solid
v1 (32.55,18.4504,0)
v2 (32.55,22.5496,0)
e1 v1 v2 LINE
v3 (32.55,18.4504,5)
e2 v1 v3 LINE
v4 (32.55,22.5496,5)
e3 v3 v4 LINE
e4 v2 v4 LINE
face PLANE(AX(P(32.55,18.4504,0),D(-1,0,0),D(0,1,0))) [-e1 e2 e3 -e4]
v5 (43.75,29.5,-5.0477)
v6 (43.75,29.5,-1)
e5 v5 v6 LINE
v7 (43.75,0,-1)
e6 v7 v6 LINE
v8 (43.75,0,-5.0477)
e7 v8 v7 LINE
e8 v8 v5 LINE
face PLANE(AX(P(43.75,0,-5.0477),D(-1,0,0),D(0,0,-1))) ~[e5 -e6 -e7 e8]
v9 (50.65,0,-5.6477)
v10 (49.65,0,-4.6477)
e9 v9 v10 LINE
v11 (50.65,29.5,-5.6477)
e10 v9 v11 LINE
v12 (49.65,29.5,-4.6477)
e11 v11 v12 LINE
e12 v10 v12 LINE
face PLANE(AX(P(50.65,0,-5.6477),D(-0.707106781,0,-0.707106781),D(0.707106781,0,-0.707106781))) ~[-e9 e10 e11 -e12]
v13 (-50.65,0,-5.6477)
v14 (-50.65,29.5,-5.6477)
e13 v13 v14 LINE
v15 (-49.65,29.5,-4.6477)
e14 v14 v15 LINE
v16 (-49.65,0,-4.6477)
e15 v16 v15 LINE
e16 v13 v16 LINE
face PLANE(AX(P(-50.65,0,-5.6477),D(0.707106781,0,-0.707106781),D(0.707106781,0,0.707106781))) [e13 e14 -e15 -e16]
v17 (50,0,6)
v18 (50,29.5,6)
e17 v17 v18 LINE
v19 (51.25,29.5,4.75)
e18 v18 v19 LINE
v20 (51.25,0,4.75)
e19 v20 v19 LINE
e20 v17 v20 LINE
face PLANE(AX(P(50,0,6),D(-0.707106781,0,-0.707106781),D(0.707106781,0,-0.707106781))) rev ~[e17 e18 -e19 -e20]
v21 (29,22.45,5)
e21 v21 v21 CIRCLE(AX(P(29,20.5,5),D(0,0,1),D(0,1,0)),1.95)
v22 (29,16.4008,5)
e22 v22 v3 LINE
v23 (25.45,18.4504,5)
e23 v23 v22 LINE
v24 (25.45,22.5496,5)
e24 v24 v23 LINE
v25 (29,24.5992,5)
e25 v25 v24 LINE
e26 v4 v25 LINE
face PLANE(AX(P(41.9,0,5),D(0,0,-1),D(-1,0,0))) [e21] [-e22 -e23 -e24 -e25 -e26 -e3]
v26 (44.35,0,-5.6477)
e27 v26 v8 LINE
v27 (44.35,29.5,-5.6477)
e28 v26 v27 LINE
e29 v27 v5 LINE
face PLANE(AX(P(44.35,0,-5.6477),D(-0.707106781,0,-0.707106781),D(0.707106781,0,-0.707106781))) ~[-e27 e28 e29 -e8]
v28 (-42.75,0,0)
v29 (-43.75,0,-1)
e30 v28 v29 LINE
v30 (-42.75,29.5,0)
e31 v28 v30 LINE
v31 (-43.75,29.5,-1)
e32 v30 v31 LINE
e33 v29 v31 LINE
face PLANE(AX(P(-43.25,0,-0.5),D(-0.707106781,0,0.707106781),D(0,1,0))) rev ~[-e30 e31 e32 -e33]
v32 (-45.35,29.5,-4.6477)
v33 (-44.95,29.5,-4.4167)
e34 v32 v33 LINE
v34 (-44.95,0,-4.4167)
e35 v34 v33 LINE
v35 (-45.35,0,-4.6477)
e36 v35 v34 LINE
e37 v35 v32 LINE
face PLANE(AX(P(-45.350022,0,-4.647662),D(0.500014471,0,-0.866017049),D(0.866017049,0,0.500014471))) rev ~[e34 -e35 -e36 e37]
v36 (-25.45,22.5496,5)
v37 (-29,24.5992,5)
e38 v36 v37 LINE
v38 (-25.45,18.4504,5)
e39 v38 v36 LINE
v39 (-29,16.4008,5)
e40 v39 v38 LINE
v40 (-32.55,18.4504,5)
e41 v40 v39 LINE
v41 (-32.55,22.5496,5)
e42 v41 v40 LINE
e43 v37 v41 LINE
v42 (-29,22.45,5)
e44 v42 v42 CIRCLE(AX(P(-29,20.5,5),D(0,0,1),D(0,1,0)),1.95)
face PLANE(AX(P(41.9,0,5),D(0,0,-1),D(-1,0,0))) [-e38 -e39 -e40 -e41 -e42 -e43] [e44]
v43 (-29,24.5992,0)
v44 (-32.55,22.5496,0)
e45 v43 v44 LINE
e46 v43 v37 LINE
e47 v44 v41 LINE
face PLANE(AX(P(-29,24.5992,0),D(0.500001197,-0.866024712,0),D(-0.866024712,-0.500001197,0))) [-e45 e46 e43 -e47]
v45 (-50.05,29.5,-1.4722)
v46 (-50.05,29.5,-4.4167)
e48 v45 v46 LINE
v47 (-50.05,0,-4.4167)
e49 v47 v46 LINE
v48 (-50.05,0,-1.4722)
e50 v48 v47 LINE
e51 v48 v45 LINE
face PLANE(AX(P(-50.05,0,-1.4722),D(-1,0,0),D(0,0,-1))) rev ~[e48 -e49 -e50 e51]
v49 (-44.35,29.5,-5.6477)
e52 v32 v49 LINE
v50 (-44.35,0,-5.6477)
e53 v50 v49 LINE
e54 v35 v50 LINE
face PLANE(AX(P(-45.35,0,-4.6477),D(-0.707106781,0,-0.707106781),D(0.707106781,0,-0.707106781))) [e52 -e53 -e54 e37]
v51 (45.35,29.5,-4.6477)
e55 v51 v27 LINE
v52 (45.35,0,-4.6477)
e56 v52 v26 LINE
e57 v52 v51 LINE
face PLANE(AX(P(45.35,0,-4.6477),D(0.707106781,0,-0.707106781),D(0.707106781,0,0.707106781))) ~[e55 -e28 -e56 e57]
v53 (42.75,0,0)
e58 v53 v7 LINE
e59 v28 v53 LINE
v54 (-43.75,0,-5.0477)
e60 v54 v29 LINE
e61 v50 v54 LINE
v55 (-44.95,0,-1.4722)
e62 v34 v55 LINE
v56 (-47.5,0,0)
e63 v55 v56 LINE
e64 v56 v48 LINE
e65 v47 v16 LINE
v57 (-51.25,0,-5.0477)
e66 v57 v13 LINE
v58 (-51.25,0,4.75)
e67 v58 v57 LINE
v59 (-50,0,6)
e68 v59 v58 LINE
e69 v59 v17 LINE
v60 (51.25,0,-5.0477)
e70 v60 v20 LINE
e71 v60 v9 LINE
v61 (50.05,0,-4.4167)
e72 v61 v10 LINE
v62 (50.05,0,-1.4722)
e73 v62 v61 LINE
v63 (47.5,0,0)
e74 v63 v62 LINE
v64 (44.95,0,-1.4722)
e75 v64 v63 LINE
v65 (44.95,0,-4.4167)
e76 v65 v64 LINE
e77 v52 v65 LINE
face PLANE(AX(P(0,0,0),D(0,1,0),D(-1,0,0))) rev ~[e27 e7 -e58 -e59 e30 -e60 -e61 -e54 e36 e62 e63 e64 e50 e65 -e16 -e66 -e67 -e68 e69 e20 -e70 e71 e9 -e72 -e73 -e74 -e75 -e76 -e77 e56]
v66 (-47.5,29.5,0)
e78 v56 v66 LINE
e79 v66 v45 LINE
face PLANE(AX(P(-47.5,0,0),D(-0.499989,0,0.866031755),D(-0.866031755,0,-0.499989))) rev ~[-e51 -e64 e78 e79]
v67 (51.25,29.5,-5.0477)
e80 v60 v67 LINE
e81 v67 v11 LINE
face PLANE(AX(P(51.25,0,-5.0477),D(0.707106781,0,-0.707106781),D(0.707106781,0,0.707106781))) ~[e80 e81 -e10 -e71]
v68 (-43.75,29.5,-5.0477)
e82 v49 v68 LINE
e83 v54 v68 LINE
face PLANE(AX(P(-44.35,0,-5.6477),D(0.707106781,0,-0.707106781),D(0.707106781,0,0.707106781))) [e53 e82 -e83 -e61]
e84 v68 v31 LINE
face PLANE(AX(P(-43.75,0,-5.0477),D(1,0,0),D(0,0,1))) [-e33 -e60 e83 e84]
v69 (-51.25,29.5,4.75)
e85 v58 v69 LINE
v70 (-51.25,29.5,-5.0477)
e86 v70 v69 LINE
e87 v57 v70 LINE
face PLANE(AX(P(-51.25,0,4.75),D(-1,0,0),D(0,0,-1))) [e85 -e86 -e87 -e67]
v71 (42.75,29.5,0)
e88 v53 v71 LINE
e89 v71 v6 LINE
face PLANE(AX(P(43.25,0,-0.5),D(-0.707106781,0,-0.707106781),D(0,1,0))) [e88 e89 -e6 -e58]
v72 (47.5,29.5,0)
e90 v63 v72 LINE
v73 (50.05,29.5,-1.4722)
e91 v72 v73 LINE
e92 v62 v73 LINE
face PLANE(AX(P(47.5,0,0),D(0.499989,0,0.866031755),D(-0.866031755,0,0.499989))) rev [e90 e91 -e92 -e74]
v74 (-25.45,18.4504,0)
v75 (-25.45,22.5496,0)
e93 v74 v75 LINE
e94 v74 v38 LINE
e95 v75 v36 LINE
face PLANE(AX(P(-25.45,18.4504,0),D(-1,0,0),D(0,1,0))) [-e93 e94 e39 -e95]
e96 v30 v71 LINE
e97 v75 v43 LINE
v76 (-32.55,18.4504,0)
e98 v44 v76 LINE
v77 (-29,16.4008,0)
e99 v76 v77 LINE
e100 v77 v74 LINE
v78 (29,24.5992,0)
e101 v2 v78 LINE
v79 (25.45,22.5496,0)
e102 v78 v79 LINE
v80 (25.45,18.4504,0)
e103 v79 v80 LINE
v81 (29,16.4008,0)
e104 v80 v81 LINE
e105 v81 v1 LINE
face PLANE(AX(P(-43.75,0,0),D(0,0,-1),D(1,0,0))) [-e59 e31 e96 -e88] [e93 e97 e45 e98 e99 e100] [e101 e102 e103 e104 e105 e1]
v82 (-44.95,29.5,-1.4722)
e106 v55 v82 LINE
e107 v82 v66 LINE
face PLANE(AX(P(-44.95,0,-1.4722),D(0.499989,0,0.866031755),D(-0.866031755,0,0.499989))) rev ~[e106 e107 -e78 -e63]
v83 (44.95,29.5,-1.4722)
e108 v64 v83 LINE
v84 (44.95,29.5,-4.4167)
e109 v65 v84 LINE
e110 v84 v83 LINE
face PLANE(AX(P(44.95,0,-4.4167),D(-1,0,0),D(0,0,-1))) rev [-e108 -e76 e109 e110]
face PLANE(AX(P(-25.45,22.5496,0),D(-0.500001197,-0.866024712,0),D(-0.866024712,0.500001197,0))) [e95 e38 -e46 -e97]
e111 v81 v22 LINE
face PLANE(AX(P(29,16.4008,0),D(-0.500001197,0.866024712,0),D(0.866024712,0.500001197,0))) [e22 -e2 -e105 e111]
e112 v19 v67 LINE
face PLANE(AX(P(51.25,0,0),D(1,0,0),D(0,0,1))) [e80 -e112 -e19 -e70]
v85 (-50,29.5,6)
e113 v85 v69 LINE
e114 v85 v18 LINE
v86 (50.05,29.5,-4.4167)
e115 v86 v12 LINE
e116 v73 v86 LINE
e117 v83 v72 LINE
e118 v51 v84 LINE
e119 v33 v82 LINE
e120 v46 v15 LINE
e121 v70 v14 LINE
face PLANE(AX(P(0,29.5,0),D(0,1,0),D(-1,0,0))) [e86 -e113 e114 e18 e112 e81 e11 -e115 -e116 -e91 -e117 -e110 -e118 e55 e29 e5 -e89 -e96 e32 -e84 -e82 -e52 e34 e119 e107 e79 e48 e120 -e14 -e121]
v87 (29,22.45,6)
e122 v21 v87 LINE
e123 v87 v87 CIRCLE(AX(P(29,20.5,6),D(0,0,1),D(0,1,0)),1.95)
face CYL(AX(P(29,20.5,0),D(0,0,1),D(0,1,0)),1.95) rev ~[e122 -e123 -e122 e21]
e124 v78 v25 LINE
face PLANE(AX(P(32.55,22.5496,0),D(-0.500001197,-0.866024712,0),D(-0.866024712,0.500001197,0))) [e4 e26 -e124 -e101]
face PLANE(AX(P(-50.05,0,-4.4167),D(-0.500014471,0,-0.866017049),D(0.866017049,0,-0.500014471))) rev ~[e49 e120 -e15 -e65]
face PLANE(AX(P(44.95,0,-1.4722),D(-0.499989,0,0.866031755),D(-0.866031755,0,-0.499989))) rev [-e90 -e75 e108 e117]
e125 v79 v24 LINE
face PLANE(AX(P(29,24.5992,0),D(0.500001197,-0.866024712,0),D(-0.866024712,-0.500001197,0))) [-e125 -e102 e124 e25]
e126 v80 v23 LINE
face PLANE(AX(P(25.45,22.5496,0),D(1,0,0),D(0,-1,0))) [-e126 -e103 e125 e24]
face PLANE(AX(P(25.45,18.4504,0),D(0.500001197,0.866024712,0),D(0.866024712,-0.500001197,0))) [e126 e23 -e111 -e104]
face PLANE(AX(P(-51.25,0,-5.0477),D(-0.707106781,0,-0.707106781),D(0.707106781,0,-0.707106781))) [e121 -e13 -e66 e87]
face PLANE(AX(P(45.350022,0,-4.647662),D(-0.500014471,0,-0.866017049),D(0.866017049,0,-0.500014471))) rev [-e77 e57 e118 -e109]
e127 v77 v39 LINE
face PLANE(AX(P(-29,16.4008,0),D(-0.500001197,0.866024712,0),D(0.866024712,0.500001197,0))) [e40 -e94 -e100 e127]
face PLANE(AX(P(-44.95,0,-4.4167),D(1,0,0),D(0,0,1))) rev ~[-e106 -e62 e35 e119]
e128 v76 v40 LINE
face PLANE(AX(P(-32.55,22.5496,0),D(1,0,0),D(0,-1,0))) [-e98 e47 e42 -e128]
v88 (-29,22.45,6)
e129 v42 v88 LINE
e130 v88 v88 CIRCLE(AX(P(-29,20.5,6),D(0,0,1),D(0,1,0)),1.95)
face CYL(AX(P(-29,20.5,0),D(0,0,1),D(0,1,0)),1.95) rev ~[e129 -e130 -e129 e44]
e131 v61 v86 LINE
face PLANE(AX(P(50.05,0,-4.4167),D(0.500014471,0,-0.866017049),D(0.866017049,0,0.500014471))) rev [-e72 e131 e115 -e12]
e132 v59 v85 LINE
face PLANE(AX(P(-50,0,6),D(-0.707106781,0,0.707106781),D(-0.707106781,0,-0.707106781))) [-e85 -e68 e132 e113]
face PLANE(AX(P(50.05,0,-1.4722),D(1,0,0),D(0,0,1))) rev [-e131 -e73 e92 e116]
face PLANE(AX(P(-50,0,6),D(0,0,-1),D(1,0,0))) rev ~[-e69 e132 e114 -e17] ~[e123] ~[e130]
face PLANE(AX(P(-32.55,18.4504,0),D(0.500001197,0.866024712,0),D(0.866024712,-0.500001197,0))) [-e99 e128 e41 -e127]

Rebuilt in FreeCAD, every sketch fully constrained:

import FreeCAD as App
import Part
import Sketcher
Q = App.Units.Quantity


def edges_at(feature, points):
    """Names of the edges that pass closest to the given points."""
    edges = feature.Shape.Edges
    near = lambda p: min(range(len(edges)), key=lambda i: edges[i].distToShape(Part.Vertex(*p))[0])
    return sorted({f"Edge{near(p) + 1}" for p in points})


def add_polygon(sketch, points):
    """Adds a closed chain of lines whose ends are joined by coincident constraints."""
    first, n = sketch.GeometryCount, len(points)
    for a, b in zip(points, points[1:] + points[:1]):
        sketch.addGeometry(Part.LineSegment(App.Vector(*a, 0), App.Vector(*b, 0)), False)
    for i in range(n):
        sketch.addConstraint(Sketcher.Constraint("Coincident", first + i, 2, first + (i + 1) % n, 1))

doc = App.newDocument("Part")
body = doc.addObject("PartDesign::Body", "Body")

# Sketch on XZ plane
sketch1 = body.newObject("Sketcher::SketchObject", "Sketch")
sketch1.AttachmentSupport = (doc.getObject("XZ_Plane"), [""])
sketch1.MapMode = "FlatFace"
add_polygon(sketch1, [(51.25, 0), (-51.25, 0), (-51.25, 4.75), (-50, 6), (50, 6), (51.25, 4.75)])  # lines 0-5
sketch1.addConstraint(Sketcher.Constraint("Horizontal", 0))
sketch1.addConstraint(Sketcher.Constraint("Vertical", 1))
sketch1.addConstraint(Sketcher.Constraint("Horizontal", 3))
sketch1.addConstraint(Sketcher.Constraint("Vertical", 5))
sketch1.addConstraint(Sketcher.Constraint("Symmetric", 0, 2, 5, 2, -1, 1))
sketch1.addConstraint(Sketcher.Constraint("Perpendicular", 2, 4))
sketch1.addConstraint(Sketcher.Constraint("Horizontal", 1, 2, 4, 2))
sketch1.addConstraint(Sketcher.Constraint("Equal", 2, 4))
sketch1.addConstraint(Sketcher.Constraint("DistanceX", 3, 1, 3, 2, Q("100 mm")))
sketch1.addConstraint(Sketcher.Constraint("DistanceY", -1, 1, 2, 2, Q("6 mm")))
sketch1.addConstraint(Sketcher.Constraint("DistanceX", 0, 2, 0, 1, Q("102.5 mm")))
pad1 = body.newObject("PartDesign::Pad", "Pad")
pad1.Profile = sketch1
pad1.Length = 29.5
pad1.Reversed = True

# Sketch on XZ plane
sketch2 = body.newObject("Sketcher::SketchObject", "Sketch001")
sketch2.AttachmentSupport = (doc.getObject("XZ_Plane"), [""])
sketch2.MapMode = "FlatFace"
add_polygon(sketch2, [(-51.25, -5.0477), (-51.25, 0), (-47.5, 0), (-50.05, -1.4722), (-50.05, -4.4167), (-49.65, -4.6477), (-50.65, -5.6477)])  # lines 0-6
add_polygon(sketch2, [(-44.95, -1.4722), (-47.5, 0), (-43.75, 0), (-43.75, -5.0477), (-44.35, -5.6477), (-45.350022, -4.647662), (-44.95, -4.4167)])  # lines 7-13
sketch2.addConstraint(Sketcher.Constraint("Vertical", 0))
sketch2.addConstraint(Sketcher.Constraint("Horizontal", 1))
sketch2.addConstraint(Sketcher.Constraint("Vertical", 3))
sketch2.addConstraint(Sketcher.Constraint("Horizontal", 8))
sketch2.addConstraint(Sketcher.Constraint("Vertical", 9))
sketch2.addConstraint(Sketcher.Constraint("Vertical", 13))
sketch2.addConstraint(Sketcher.Constraint("Coincident", 7, 2, 1, 2))
sketch2.addConstraint(Sketcher.Constraint("PointOnObject", 0, 2, -1))
sketch2.addConstraint(Sketcher.Constraint("Perpendicular", 5, 6))
sketch2.addConstraint(Sketcher.Constraint("Parallel", 4, 7))
sketch2.addConstraint(Sketcher.Constraint("Perpendicular", 6, 10))
sketch2.addConstraint(Sketcher.Constraint("Perpendicular", 10, 11))
sketch2.addConstraint(Sketcher.Constraint("Parallel", 2, 12))
sketch2.addConstraint(Sketcher.Constraint("Horizontal", 6, 2, 9, 2))
sketch2.addConstraint(Sketcher.Constraint("Horizontal", 5, 2, 10, 2))
sketch2.addConstraint(Sketcher.Constraint("Horizontal", 4, 2, 11, 2))
sketch2.addConstraint(Sketcher.Constraint("Horizontal", 3, 2, 12, 2))
sketch2.addConstraint(Sketcher.Constraint("Horizontal", 2, 2, 13, 2))
sketch2.addConstraint(Sketcher.Constraint("Equal", 1, 8))
sketch2.addConstraint(Sketcher.Constraint("Equal", 2, 7))
sketch2.addConstraint(Sketcher.Constraint("DistanceX", 0, 2, 2, 2, Q("1.2 mm")))
sketch2.addConstraint(Sketcher.Constraint("DistanceX", 3, 2, 4, 2, Q("0.4 mm")))
sketch2.addConstraint(Sketcher.Constraint("DistanceY", 6, 2, 4, 2, Q("0.4 mm")))
sketch2.addConstraint(Sketcher.Constraint("Angle", 2, Q("-150.0007 deg")))
sketch2.addConstraint(Sketcher.Constraint("DistanceX", 1, 1, 1, 2, Q("3.75 mm")))
sketch2.addConstraint(Sketcher.Constraint("DistanceX", 1, 2, -1, 1, Q("47.5 mm")))
sketch2.addConstraint(Sketcher.Constraint("DistanceY", 0, 1, 0, 2, Q("5.0477 mm")))
pad2 = body.newObject("PartDesign::Pad", "Pad001")
pad2.Profile = sketch2
pad2.Length = 29.5
pad2.Reversed = True
doc.recompute()

mirrored = body.newObject("PartDesign::Mirrored", "Mirrored")
mirrored.Originals = [pad2]
mirrored.MirrorPlane = (doc.getObject("YZ_Plane"), [""])
body.Tip = mirrored

# Sketch on XY plane
sketch3 = body.newObject("Sketcher::SketchObject", "Sketch002")
sketch3.AttachmentSupport = (doc.getObject("XY_Plane"), [""])
sketch3.MapMode = "FlatFace"
add_polygon(sketch3, [(29, 24.5992), (32.55, 22.5496), (32.55, 18.4504), (29, 16.4008), (25.45, 18.4504), (25.45, 22.5496)])  # lines 0-5
add_polygon(sketch3, [(-32.55, 18.4504), (-32.55, 22.5496), (-29, 24.5992), (-25.45, 22.5496), (-25.45, 18.4504), (-29, 16.4008)])  # lines 6-11
sketch3.addConstraint(Sketcher.Constraint("Vertical", 1))
sketch3.addConstraint(Sketcher.Constraint("Vertical", 4))
sketch3.addConstraint(Sketcher.Constraint("Vertical", 6))
sketch3.addConstraint(Sketcher.Constraint("Vertical", 9))
sketch3.addConstraint(Sketcher.Constraint("Symmetric", 0, 2, 6, 2, -2))
sketch3.addConstraint(Sketcher.Constraint("Symmetric", 5, 2, 7, 2, -2))
sketch3.addConstraint(Sketcher.Constraint("Symmetric", 4, 2, 8, 2, -2))
sketch3.addConstraint(Sketcher.Constraint("Symmetric", 2, 2, 10, 2, -2))
sketch3.addConstraint(Sketcher.Constraint("Parallel", 0, 3))
sketch3.addConstraint(Sketcher.Constraint("Parallel", 2, 5))
sketch3.addConstraint(Sketcher.Constraint("Parallel", 5, 7))
sketch3.addConstraint(Sketcher.Constraint("Parallel", 7, 10))
sketch3.addConstraint(Sketcher.Constraint("Parallel", 8, 11))
sketch3.addConstraint(Sketcher.Constraint("Horizontal", 1, 2, 3, 2))
sketch3.addConstraint(Sketcher.Constraint("Horizontal", 0, 2, 4, 2))
sketch3.addConstraint(Sketcher.Constraint("DistanceX", 6, 2, 4, 2, Q("58 mm")))
sketch3.addConstraint(Sketcher.Constraint("DistanceX", 3, 2, 1, 2, Q("7.1 mm")))
sketch3.addConstraint(Sketcher.Constraint("Angle", 0, Q("-30 deg")))
sketch3.addConstraint(Sketcher.Constraint("DistanceY", 1, 2, 1, 1, Q("4.0992 mm")))
sketch3.addConstraint(Sketcher.Constraint("DistanceY", -1, 1, 0, 2, Q("22.5496 mm")))
pocket1 = body.newObject("PartDesign::Pocket", "Pocket")
pocket1.Profile = sketch3
pocket1.Length = 5
pocket1.Reversed = True

# Sketch on XY plane
sketch4 = body.newObject("Sketcher::SketchObject", "Sketch003")
sketch4.AttachmentSupport = (doc.getObject("XY_Plane"), [""])
sketch4.MapMode = "FlatFace"
sketch4.addGeometry(Part.Circle(App.Vector(29, 20.5, 0), App.Vector(0, 0, 1), 1.95), False)
sketch4.addGeometry(Part.Circle(App.Vector(-29, 20.5, 0), App.Vector(0, 0, 1), 1.95), False)
sketch4.addConstraint(Sketcher.Constraint("Equal", 0, 1))
sketch4.addConstraint(Sketcher.Constraint("Symmetric", 0, 3, 1, 3, -2))
sketch4.addConstraint(Sketcher.Constraint("Diameter", 0, Q("3.9 mm")))
sketch4.addConstraint(Sketcher.Constraint("DistanceX", -1, 1, 0, 3, Q("29 mm")))
sketch4.addConstraint(Sketcher.Constraint("DistanceY", -1, 1, 0, 3, Q("20.5 mm")))
doc.recompute()
hole = body.newObject("PartDesign::Hole", "Hole")
hole.Profile = sketch4
hole.ThreadType = "None"
hole.Diameter = 3.9
hole.DepthType = "ThroughAll"
hole.Reversed = True
doc.recompute()

chamfer = body.newObject("PartDesign::Chamfer", "Chamfer")
chamfer.Base = (hole, edges_at(hole, [(-43.75, 14.75, 0), (43.75, 14.75, 0)]))
chamfer.Size = 1

doc.recompute()
